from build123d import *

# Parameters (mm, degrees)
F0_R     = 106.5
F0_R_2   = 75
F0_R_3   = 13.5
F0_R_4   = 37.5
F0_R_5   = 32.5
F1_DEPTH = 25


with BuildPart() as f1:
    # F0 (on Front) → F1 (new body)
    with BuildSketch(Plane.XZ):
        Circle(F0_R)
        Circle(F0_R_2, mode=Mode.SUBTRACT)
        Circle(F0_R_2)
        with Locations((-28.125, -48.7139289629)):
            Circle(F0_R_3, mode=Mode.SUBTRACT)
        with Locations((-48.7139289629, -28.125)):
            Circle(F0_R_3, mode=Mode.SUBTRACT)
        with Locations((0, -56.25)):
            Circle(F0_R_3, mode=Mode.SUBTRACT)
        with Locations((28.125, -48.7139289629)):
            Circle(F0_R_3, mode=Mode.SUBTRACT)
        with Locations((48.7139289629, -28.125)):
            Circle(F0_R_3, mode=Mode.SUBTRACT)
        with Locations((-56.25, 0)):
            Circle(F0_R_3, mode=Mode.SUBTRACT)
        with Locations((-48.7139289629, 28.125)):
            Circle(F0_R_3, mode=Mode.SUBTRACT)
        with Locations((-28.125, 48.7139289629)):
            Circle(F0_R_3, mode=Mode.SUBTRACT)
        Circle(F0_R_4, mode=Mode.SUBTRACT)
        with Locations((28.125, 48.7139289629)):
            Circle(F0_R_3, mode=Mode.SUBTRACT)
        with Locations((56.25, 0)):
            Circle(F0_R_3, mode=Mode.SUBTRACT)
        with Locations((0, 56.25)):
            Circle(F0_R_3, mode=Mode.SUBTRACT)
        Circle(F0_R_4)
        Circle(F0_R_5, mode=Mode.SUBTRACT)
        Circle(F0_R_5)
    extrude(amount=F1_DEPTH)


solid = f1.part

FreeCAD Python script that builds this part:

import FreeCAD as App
import Part
import Sketcher
from FreeCAD import Vector
Q = App.Units.Quantity

doc = App.newDocument("Part")
body = doc.addObject("PartDesign::Body", "Body")

# Sketch on XZ plane
sketch1 = body.newObject("Sketcher::SketchObject", "Sketch")
sketch1.AttachmentSupport = (doc.getObject("XZ_Plane"), [""])
sketch1.MapMode = "FlatFace"
sketch1.addGeometry([
    Part.Circle(Vector(0, 0, 0), Vector(0, 0, 1), 106),  # 0
    Part.Circle(Vector(-28, -49, 0), Vector(0, 0, 1), 14),  # 1
    Part.Circle(Vector(-49, -28, 0), Vector(0, 0, 1), 14),  # 2
    Part.Circle(Vector(0, -56, 0), Vector(0, 0, 1), 14),  # 3
    Part.Circle(Vector(28, -49, 0), Vector(0, 0, 1), 14),  # 4
    Part.Circle(Vector(49, -28, 0), Vector(0, 0, 1), 14),  # 5
    Part.Circle(Vector(-56, 0, 0), Vector(0, 0, 1), 14),  # 6
    Part.Circle(Vector(-49, 28, 0), Vector(0, 0, 1), 14),  # 7
    Part.Circle(Vector(-28, 49, 0), Vector(0, 0, 1), 14),  # 8
    Part.Circle(Vector(56, 0, 0), Vector(0, 0, 1), 14),  # 9
    Part.Circle(Vector(28, 49, 0), Vector(0, 0, 1), 14),  # 10
    Part.Circle(Vector(0, 56, 0), Vector(0, 0, 1), 14),  # 11
], False)
sketch1.addConstraint([
    Sketcher.Constraint("Coincident", 0, 3, -1, 1),
    Sketcher.Constraint("Equal", 1, 2),
    Sketcher.Constraint("Equal", 2, 3),
    Sketcher.Constraint("Equal", 3, 4),
    Sketcher.Constraint("Equal", 4, 5),
    Sketcher.Constraint("Equal", 5, 6),
    Sketcher.Constraint("Equal", 6, 7),
    Sketcher.Constraint("Equal", 7, 8),
    Sketcher.Constraint("Equal", 8, 9),
    Sketcher.Constraint("Equal", 9, 10),
    Sketcher.Constraint("Equal", 10, 11),
    Sketcher.Constraint("Symmetric", 5, 3, 7, 3, -1, 1),
    Sketcher.Constraint("Symmetric", 4, 3, 8, 3, -1, 1),
    Sketcher.Constraint("Symmetric", 6, 3, 9, 3, -1, 1),
    Sketcher.Constraint("Symmetric", 1, 3, 10, 3, -1, 1),
    Sketcher.Constraint("Symmetric", 3, 3, 11, 3, -1, 1),
    Sketcher.Constraint("Symmetric", 1, 3, 4, 3, -2),
    Sketcher.Constraint("Symmetric", 2, 3, 5, 3, -2),
    Sketcher.Constraint("PointOnObject", 3, 3, -2),
    Sketcher.Constraint("PointOnObject", 6, 3, -1),
    Sketcher.Constraint("Diameter", 0, Q("213 mm")),
    Sketcher.Constraint("Diameter", 1, Q("27 mm")),
    Sketcher.Constraint("DistanceY", 3, 3, -1, 1, Q("56.25 mm")),
    Sketcher.Constraint("DistanceX", 6, 3, -1, 1, Q("56.25 mm")),
    Sketcher.Constraint("DistanceX", 1, 3, 4, 3, Q("56.25 mm")),
    Sketcher.Constraint("DistanceY", 2, 3, 7, 3, Q("56.25 mm")),
    Sketcher.Constraint("DistanceY", 1, 3, -1, 1, Q("48.713929 mm")),
    Sketcher.Constraint("DistanceX", 2, 3, -1, 1, Q("48.713929 mm")),
])
pad1 = body.newObject("PartDesign::Pad", "Pad")
pad1.Profile = sketch1
pad1.Length = 25

doc.recompute()
